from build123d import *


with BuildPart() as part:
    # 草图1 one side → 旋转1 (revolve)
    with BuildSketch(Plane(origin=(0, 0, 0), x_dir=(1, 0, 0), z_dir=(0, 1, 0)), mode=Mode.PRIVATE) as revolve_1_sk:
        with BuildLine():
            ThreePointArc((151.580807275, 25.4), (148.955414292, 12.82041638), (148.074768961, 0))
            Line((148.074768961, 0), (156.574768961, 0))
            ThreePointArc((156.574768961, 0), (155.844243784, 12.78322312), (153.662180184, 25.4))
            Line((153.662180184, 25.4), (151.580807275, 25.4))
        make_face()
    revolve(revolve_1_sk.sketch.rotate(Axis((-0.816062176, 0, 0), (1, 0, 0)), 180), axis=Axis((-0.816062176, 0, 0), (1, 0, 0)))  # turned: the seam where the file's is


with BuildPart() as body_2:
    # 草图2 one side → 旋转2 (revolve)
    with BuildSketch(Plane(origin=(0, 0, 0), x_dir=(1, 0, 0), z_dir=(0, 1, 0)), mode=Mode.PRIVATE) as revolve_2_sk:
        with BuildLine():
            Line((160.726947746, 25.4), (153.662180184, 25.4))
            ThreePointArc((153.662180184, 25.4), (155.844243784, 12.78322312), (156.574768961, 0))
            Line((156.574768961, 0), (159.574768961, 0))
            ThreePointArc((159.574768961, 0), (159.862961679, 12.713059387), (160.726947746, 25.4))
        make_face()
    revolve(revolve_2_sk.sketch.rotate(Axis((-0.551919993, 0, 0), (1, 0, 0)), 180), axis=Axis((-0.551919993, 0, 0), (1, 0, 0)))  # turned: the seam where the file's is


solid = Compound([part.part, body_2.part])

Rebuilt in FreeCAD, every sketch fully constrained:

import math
import FreeCAD as App
import Part
import Sketcher
from FreeCAD import Vector

doc = App.newDocument("Part")
params = doc.addObject("Spreadsheet::Sheet", "Params")
for row, (alias, value) in enumerate([
    ("sketch1_radius", "93.76 mm"),
    ("sketch1_radius2", "112.21 mm"),
    ("sketch1_width", "8.5 mm"),
    ("revolution_angle", "360 deg"),
    ("sketch2_width", "3 mm"),
    ("sketch2_radius", "112.21 mm"),
    ("sketch2_radius2", "280.55 mm"),
    ("revolution2_angle", "360 deg"),
], start=1):
    params.set(f"A{row}", alias)
    params.set(f"B{row}", "=" + value)
    params.setAlias(f"B{row}", alias)

body = doc.addObject("PartDesign::Body", "Body")

# Sketch on XZ plane
sketch1 = body.newObject("Sketcher::SketchObject", "Sketch")
sketch1.AttachmentSupport = (doc.getObject("XZ_Plane"), [""])
sketch1.MapMode = "FlatFace"
sketch1.addGeometry([
    Part.ArcOfCircle(Part.Circle(Vector(241.8, 0, 0), Vector(0, 0, 1), 93.8), math.radians(-180), math.radians(-164.28)),
    Part.LineSegment(Vector(148.1, 0, 0), Vector(156.6, 0, 0)),
    Part.ArcOfCircle(Part.Circle(Vector(44.4, 0, 0), Vector(0, 0, 1), 112.2), math.radians(-13.08), math.radians(0)),
    Part.LineSegment(Vector(153.7, -25.4, 0), Vector(151.6, -25.4, 0)),
], False)
sketch1.addConstraint([
    Sketcher.Constraint("Coincident", 0, 1, 1, 1),
    Sketcher.Constraint("Coincident", 1, 2, 2, 2),
    Sketcher.Constraint("Coincident", 2, 1, 3, 1),
    Sketcher.Constraint("Coincident", 3, 2, 0, 2),
    Sketcher.Constraint("Horizontal", 1),
    Sketcher.Constraint("Horizontal", 3),
    Sketcher.Constraint("PointOnObject", 0, 3, -1),
    Sketcher.Constraint("PointOnObject", 2, 3, -1),
    Sketcher.Constraint("PointOnObject", 0, 1, -1),
    Sketcher.Constraint("Radius", 0, 93.76),
    Sketcher.Constraint("Radius", 2, 112.21),
    Sketcher.Constraint("DistanceX", 1, 1, 1, 2, 8.5),
    Sketcher.Constraint("DistanceY", 2, 1, -1, 1, 25.4),
    Sketcher.Constraint("DistanceX", -1, 1, 0, 3, 241.834769),
])
sketch1.setExpression("Constraints[9]", "Params.sketch1_radius")
sketch1.setExpression("Constraints[10]", "Params.sketch1_radius2")
sketch1.setExpression("Constraints[11]", "Params.sketch1_width")
revolution = body.newObject("PartDesign::Revolution", "Revolution")
revolution.Profile = sketch1
revolution.ReferenceAxis = (sketch1, ["H_Axis"])
revolution.setExpression("Angle", "Params.revolution_angle")
body2 = doc.addObject("PartDesign::Body", "Body001")

# Sketch on XZ plane
sketch2 = body2.newObject("Sketcher::SketchObject", "Sketch001")
sketch2.AttachmentSupport = (doc.getObject("XZ_Plane001"), [""])
sketch2.MapMode = "FlatFace"
sketch2.addGeometry([
    Part.LineSegment(Vector(160.7, -25.4, 0), Vector(153.7, -25.4, 0)),
    Part.ArcOfCircle(Part.Circle(Vector(44.4, 0, 0), Vector(0, 0, 1), 112.2), math.radians(-13.08), math.radians(0)),
    Part.LineSegment(Vector(156.6, 0, 0), Vector(159.6, 0, 0)),
    Part.ArcOfCircle(Part.Circle(Vector(440.1, 0, 0), Vector(0, 0, 1), 280.5), math.radians(180), math.radians(185.19)),
], False)
sketch2.addConstraint([
    Sketcher.Constraint("Coincident", 0, 2, 1, 1),
    Sketcher.Constraint("Coincident", 1, 2, 2, 1),
    Sketcher.Constraint("Coincident", 2, 2, 3, 1),
    Sketcher.Constraint("Coincident", 3, 2, 0, 1),
    Sketcher.Constraint("Horizontal", 0),
    Sketcher.Constraint("Horizontal", 2),
    Sketcher.Constraint("PointOnObject", 1, 3, -1),
    Sketcher.Constraint("PointOnObject", 3, 3, -1),
    Sketcher.Constraint("PointOnObject", 1, 2, -1),
    Sketcher.Constraint("DistanceX", 2, 1, 2, 2, 3.0),
    Sketcher.Constraint("Radius", 1, 112.21),
    Sketcher.Constraint("Radius", 3, 280.55),
    Sketcher.Constraint("DistanceY", 0, 2, -1, 1, 25.4),
    Sketcher.Constraint("DistanceX", -1, 1, 1, 3, 44.364769),
])
sketch2.setExpression("Constraints[9]", "Params.sketch2_width")
sketch2.setExpression("Constraints[10]", "Params.sketch2_radius")
sketch2.setExpression("Constraints[11]", "Params.sketch2_radius2")
revolution2 = body2.newObject("PartDesign::Revolution", "Revolution001")
revolution2.Profile = sketch2
revolution2.ReferenceAxis = (sketch2, ["H_Axis"])
revolution2.setExpression("Angle", "Params.revolution2_angle")

doc.recompute()
